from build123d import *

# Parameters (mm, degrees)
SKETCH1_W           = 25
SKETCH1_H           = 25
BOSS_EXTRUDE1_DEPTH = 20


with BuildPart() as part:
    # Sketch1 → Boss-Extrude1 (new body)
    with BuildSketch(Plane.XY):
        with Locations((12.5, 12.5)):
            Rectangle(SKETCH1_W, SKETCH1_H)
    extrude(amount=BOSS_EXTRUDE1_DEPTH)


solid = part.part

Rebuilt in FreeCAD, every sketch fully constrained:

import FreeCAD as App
import Part
import Sketcher
from FreeCAD import Vector
Q = App.Units.Quantity


def add_polygon(sketch, points):
    """Adds a closed chain of lines whose ends are joined by coincident constraints."""
    first, n = sketch.GeometryCount, len(points)
    for a, b in zip(points, points[1:] + points[:1]):
        sketch.addGeometry(Part.LineSegment(App.Vector(*a, 0), App.Vector(*b, 0)), False)
    for i in range(n):
        sketch.addConstraint(Sketcher.Constraint("Coincident", first + i, 2, first + (i + 1) % n, 1))

doc = App.newDocument("Part")
params = doc.addObject("Spreadsheet::Sheet", "Params")
for row, (alias, value) in enumerate([
    ("sketch1_width", "25 mm"),
    ("pad1_length", "20 mm"),
], start=1):
    params.set(f"A{row}", alias)
    params.set(f"B{row}", "=" + value)
    params.setAlias(f"B{row}", alias)

body = doc.addObject("PartDesign::Body", "Body")

sketch1 = doc.addObject("Sketcher::SketchObject", "Sketch")
body.addObject(sketch1)
sketch1.AttachmentSupport = (doc.XY_Plane, [""])
sketch1.MapMode = "FlatFace"
add_polygon(sketch1, [(0, 25), (0, 0), (25, 0), (25, 25)])
sketch1.addConstraint([
    Sketcher.Constraint("Vertical", 0),
    Sketcher.Constraint("Horizontal", 1),
    Sketcher.Constraint("Vertical", 2),
    Sketcher.Constraint("Horizontal", 3),
    Sketcher.Constraint("Coincident", 0, 2, -1, 1),
    Sketcher.Constraint("Equal", 3, 0),
    Sketcher.Constraint("DistanceX", 1, 1, 1, 2, Q("25 mm")),
])
sketch1.setExpression("Constraints[10]", "Params.sketch1_width")
pad1 = doc.addObject("PartDesign::Pad", "Pad")
body.addObject(pad1)
pad1.Profile = sketch1
pad1.setExpression("Length", "Params.pad1_length")

doc.recompute()
